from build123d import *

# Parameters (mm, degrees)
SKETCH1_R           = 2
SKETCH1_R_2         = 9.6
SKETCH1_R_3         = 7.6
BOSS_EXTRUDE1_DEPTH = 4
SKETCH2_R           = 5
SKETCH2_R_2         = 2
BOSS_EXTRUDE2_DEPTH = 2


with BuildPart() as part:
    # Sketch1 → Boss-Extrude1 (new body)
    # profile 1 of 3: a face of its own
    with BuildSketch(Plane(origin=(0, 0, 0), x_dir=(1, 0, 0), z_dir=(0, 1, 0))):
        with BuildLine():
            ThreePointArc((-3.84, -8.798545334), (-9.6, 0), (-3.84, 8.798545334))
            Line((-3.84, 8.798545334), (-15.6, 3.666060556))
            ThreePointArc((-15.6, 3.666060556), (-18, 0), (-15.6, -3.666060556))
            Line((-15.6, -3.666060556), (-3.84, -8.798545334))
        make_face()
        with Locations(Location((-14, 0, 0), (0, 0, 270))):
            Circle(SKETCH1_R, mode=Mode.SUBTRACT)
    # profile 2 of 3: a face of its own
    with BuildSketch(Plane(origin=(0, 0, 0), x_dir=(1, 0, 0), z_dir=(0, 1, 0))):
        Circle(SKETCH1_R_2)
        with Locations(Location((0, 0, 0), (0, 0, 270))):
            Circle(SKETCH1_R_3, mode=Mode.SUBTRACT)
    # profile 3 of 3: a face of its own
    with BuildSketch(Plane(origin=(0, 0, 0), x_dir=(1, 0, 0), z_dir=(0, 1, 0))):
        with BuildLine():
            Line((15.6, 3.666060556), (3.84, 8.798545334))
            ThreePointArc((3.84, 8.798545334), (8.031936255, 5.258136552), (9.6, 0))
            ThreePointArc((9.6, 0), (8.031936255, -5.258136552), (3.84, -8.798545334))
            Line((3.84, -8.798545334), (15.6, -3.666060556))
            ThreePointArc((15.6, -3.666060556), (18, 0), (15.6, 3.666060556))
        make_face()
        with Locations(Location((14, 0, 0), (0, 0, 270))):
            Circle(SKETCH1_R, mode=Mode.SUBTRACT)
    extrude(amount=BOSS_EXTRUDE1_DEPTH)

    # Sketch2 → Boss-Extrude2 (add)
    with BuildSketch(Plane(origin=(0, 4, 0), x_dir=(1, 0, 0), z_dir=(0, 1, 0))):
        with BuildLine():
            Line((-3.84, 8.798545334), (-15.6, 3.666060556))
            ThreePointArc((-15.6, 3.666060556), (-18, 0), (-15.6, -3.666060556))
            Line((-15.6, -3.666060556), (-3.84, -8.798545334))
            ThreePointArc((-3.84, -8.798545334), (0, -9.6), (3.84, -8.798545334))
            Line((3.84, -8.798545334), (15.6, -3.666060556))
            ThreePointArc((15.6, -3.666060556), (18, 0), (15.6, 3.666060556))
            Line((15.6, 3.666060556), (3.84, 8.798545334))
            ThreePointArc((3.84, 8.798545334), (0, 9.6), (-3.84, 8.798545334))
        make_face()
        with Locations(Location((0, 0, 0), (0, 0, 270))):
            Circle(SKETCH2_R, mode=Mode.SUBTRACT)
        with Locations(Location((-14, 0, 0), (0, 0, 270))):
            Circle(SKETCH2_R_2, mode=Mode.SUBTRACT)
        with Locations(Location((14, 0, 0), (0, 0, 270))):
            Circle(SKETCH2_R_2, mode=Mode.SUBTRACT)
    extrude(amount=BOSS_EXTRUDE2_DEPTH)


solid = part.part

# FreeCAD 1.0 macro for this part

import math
import FreeCAD as App
import Part
import Sketcher
from FreeCAD import Vector
Q = App.Units.Quantity

doc = App.newDocument("Part")
body = doc.addObject("PartDesign::Body", "Body")

# Sketch on XZ plane
sketch1 = doc.addObject("Sketcher::SketchObject", "Sketch")
body.addObject(sketch1)
sketch1.AttachmentSupport = (doc.XZ_Plane, [""])
sketch1.MapMode = "FlatFace"
sketch1.addGeometry(Part.LineSegment(Vector(-15.6, 3.7, 0), Vector(-3.8, 8.8, 0)), False)
sketch1.addGeometry(Part.ArcOfCircle(Part.Circle(Vector(0, 0, 0), Vector(0, 0, 1), 9.6), math.radians(66), math.radians(114)), False)
sketch1.addGeometry(Part.LineSegment(Vector(3.8, 8.8, 0), Vector(15.6, 3.7, 0)), False)
sketch1.addGeometry(Part.ArcOfCircle(Part.Circle(Vector(14, 0, 0), Vector(0, 0, 1), 4), math.radians(-66), math.radians(66)), False)
sketch1.addGeometry(Part.LineSegment(Vector(15.6, -3.7, 0), Vector(3.8, -8.8, 0)), False)
sketch1.addGeometry(Part.ArcOfCircle(Part.Circle(Vector(0, 0, 0), Vector(0, 0, 1), 9.6), math.radians(-114), math.radians(-66)), False)
sketch1.addGeometry(Part.LineSegment(Vector(-3.8, -8.8, 0), Vector(-15.6, -3.7, 0)), False)
sketch1.addGeometry(Part.ArcOfCircle(Part.Circle(Vector(-14, 0, 0), Vector(0, 0, 1), 4), math.radians(114), math.radians(246)), False)
sketch1.addGeometry(Part.Circle(Vector(-14, 0, 0), Vector(0, 0, 1), 2), False)
sketch1.addGeometry(Part.Circle(Vector(0, 0, 0), Vector(0, 0, 1), 7.6), False)
sketch1.addGeometry(Part.Circle(Vector(14, 0, 0), Vector(0, 0, 1), 2), False)
sketch1.addConstraint(Sketcher.Constraint("Tangent", 0, 2, 1, 2))
sketch1.addConstraint(Sketcher.Constraint("Tangent", 1, 1, 2, 1))
sketch1.addConstraint(Sketcher.Constraint("Tangent", 2, 2, 3, 2))
sketch1.addConstraint(Sketcher.Constraint("Tangent", 3, 1, 4, 1))
sketch1.addConstraint(Sketcher.Constraint("Tangent", 4, 2, 5, 2))
sketch1.addConstraint(Sketcher.Constraint("Tangent", 5, 1, 6, 1))
sketch1.addConstraint(Sketcher.Constraint("Tangent", 6, 2, 7, 2))
sketch1.addConstraint(Sketcher.Constraint("Tangent", 7, 1, 0, 1))
sketch1.addConstraint(Sketcher.Constraint("Coincident", 1, 3, -1, 1))
sketch1.addConstraint(Sketcher.Constraint("Coincident", 5, 3, -1, 1))
sketch1.addConstraint(Sketcher.Constraint("Coincident", 9, 3, -1, 1))
sketch1.addConstraint(Sketcher.Constraint("Coincident", 8, 3, 7, 3))
sketch1.addConstraint(Sketcher.Constraint("Coincident", 10, 3, 3, 3))
sketch1.addConstraint(Sketcher.Constraint("Equal", 1, 5))
sketch1.addConstraint(Sketcher.Constraint("Equal", 3, 7))
sketch1.addConstraint(Sketcher.Constraint("Equal", 8, 10))
sketch1.addConstraint(Sketcher.Constraint("Symmetric", 3, 3, 7, 3, -1, 1))
sketch1.addConstraint(Sketcher.Constraint("PointOnObject", 3, 3, -1))
sketch1.addConstraint(Sketcher.Constraint("Diameter", 8, Q("4 mm")))
sketch1.addConstraint(Sketcher.Constraint("Radius", 3, Q("4 mm")))
sketch1.addConstraint(Sketcher.Constraint("Diameter", 9, Q("15.2 mm")))
sketch1.addConstraint(Sketcher.Constraint("Radius", 1, Q("9.6 mm")))
sketch1.addConstraint(Sketcher.Constraint("DistanceX", -1, 1, 3, 3, Q("14 mm")))
pad1 = doc.addObject("PartDesign::Pad", "Pad")
body.addObject(pad1)
pad1.Profile = sketch1
pad1.Length = 4
pad1.Reversed = True

# Sketch on XZ plane
sketch2 = doc.addObject("Sketcher::SketchObject", "Sketch001")
body.addObject(sketch2)
sketch2.AttachmentSupport = (doc.XZ_Plane, [""])
sketch2.MapMode = "FlatFace"
sketch2.AttachmentOffset = App.Placement(Vector(0, 0, -4), App.Rotation())
sketch2.addGeometry(Part.LineSegment(Vector(-3.8, -8.8, 0), Vector(-15.6, -3.7, 0)), False)
sketch2.addGeometry(Part.ArcOfCircle(Part.Circle(Vector(-14, 0, 0), Vector(0, 0, 1), 4), math.radians(114), math.radians(246)), False)
sketch2.addGeometry(Part.LineSegment(Vector(-15.6, 3.7, 0), Vector(-3.8, 8.8, 0)), False)
sketch2.addGeometry(Part.ArcOfCircle(Part.Circle(Vector(0, 0, 0), Vector(0, 0, 1), 9.6), math.radians(66), math.radians(114)), False)
sketch2.addGeometry(Part.LineSegment(Vector(3.8, 8.8, 0), Vector(15.6, 3.7, 0)), False)
sketch2.addGeometry(Part.ArcOfCircle(Part.Circle(Vector(14, 0, 0), Vector(0, 0, 1), 4), math.radians(-66), math.radians(66)), False)
sketch2.addGeometry(Part.LineSegment(Vector(15.6, -3.7, 0), Vector(3.8, -8.8, 0)), False)
sketch2.addGeometry(Part.ArcOfCircle(Part.Circle(Vector(0, 0, 0), Vector(0, 0, 1), 9.6), math.radians(-114), math.radians(-66)), False)
sketch2.addGeometry(Part.Circle(Vector(-14, 0, 0), Vector(0, 0, 1), 2), False)
sketch2.addGeometry(Part.Circle(Vector(0, 0, 0), Vector(0, 0, 1), 5), False)
sketch2.addGeometry(Part.Circle(Vector(14, 0, 0), Vector(0, 0, 1), 2), False)
sketch2.addConstraint(Sketcher.Constraint("Tangent", 0, 2, 1, 2))
sketch2.addConstraint(Sketcher.Constraint("Tangent", 1, 1, 2, 1))
sketch2.addConstraint(Sketcher.Constraint("Tangent", 2, 2, 3, 2))
sketch2.addConstraint(Sketcher.Constraint("Tangent", 3, 1, 4, 1))
sketch2.addConstraint(Sketcher.Constraint("Tangent", 4, 2, 5, 2))
sketch2.addConstraint(Sketcher.Constraint("Tangent", 5, 1, 6, 1))
sketch2.addConstraint(Sketcher.Constraint("Tangent", 6, 2, 7, 2))
sketch2.addConstraint(Sketcher.Constraint("Tangent", 7, 1, 0, 1))
sketch2.addConstraint(Sketcher.Constraint("Coincident", 3, 3, -1, 1))
sketch2.addConstraint(Sketcher.Constraint("Coincident", 7, 3, -1, 1))
sketch2.addConstraint(Sketcher.Constraint("Coincident", 9, 3, -1, 1))
sketch2.addConstraint(Sketcher.Constraint("Coincident", 8, 3, 1, 3))
sketch2.addConstraint(Sketcher.Constraint("Coincident", 10, 3, 5, 3))
sketch2.addConstraint(Sketcher.Constraint("Equal", 1, 5))
sketch2.addConstraint(Sketcher.Constraint("Equal", 3, 7))
sketch2.addConstraint(Sketcher.Constraint("Equal", 8, 10))
sketch2.addConstraint(Sketcher.Constraint("Symmetric", 1, 3, 5, 3, -1, 1))
sketch2.addConstraint(Sketcher.Constraint("PointOnObject", 1, 3, -1))
sketch2.addConstraint(Sketcher.Constraint("Diameter", 8, Q("4 mm")))
sketch2.addConstraint(Sketcher.Constraint("Diameter", 9, Q("10 mm")))
sketch2.addConstraint(Sketcher.Constraint("Radius", 1, Q("4 mm")))
sketch2.addConstraint(Sketcher.Constraint("Radius", 3, Q("9.6 mm")))
sketch2.addConstraint(Sketcher.Constraint("DistanceX", 1, 3, -1, 1, Q("14 mm")))
pad2 = doc.addObject("PartDesign::Pad", "Pad001")
body.addObject(pad2)
pad2.Profile = sketch2
pad2.Length = 2
pad2.Reversed = True

doc.recompute()
